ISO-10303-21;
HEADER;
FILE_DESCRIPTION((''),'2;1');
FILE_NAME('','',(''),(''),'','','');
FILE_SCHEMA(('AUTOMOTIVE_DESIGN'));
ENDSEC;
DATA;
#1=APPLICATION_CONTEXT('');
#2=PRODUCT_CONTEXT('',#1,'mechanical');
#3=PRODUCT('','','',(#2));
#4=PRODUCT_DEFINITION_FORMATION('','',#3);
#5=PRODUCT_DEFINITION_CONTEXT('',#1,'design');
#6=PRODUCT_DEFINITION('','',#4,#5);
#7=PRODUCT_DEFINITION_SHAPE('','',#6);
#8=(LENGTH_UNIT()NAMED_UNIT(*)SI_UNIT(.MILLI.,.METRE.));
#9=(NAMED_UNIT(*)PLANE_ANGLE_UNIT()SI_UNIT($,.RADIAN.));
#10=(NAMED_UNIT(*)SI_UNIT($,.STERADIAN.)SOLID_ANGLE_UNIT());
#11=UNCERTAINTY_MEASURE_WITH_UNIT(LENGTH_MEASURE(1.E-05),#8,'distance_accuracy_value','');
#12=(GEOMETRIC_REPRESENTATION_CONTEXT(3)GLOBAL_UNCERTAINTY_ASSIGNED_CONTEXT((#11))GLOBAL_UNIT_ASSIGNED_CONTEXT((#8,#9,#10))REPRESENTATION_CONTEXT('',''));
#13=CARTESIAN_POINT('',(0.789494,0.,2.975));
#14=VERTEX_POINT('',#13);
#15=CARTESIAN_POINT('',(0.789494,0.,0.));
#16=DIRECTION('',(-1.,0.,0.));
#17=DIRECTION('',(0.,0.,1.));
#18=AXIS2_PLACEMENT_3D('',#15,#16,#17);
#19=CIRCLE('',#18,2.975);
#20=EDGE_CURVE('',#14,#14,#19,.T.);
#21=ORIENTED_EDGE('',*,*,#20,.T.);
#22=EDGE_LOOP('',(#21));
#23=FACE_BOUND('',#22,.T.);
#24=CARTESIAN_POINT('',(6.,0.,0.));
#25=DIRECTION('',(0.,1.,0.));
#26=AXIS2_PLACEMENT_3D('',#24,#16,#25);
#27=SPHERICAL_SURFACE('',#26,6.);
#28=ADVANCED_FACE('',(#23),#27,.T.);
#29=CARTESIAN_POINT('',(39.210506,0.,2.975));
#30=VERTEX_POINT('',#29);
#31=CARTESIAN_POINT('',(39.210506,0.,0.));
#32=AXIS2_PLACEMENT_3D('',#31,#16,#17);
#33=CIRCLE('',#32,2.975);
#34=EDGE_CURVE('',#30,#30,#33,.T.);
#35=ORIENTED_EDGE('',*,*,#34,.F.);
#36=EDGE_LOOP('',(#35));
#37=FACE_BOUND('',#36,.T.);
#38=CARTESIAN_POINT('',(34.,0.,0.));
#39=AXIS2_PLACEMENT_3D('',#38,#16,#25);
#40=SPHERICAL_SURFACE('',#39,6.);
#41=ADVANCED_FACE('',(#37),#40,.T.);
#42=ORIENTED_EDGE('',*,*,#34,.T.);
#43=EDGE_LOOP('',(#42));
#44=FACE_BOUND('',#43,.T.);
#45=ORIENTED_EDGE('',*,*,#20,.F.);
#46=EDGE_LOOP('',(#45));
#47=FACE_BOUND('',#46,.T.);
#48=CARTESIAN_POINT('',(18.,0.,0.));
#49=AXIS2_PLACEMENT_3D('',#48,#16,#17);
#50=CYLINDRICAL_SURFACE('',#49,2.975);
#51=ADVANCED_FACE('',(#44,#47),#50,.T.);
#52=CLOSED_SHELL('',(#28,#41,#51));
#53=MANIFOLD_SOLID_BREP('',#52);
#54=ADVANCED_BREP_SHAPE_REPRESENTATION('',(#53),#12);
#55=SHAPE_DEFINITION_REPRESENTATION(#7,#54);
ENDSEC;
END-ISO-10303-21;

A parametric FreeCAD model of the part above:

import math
import FreeCAD as App
import Part
import Sketcher
from FreeCAD import Vector

doc = App.newDocument("Part")
body = doc.addObject("PartDesign::Body", "Body")

# Sketch on XY plane
sketch1 = body.newObject("Sketcher::SketchObject", "Sketch")
sketch1.AttachmentSupport = (doc.getObject("XY_Plane"), [""])
sketch1.MapMode = "FlatFace"
sketch1.addGeometry([
    Part.LineSegment(Vector(0, 0, 0), Vector(40, 0, 0)),
    Part.ArcOfCircle(Part.Circle(Vector(34, 0, 0), Vector(0, 0, 1), 6), math.radians(0), math.radians(29.724716)),
    Part.LineSegment(Vector(39.210506, 2.975, 0), Vector(0.789494, 2.975, 0)),
    Part.ArcOfCircle(Part.Circle(Vector(6, 0, 0), Vector(0, 0, 1), 6), math.radians(150.275284), math.radians(180)),
], False)
sketch1.addConstraint([
    Sketcher.Constraint("Coincident", 0, 2, 1, 1),
    Sketcher.Constraint("Coincident", 1, 2, 2, 1),
    Sketcher.Constraint("Coincident", 2, 2, 3, 1),
    Sketcher.Constraint("Coincident", 3, 2, 0, 1),
    Sketcher.Constraint("Horizontal", 0),
    Sketcher.Constraint("Horizontal", 2),
    Sketcher.Constraint("Coincident", 3, 2, -1, 1),
    Sketcher.Constraint("Equal", 1, 3),
    Sketcher.Constraint("PointOnObject", 1, 3, -1),
    Sketcher.Constraint("PointOnObject", 3, 3, -1),
    Sketcher.Constraint("Radius", 1, 6.0),
    Sketcher.Constraint("DistanceX", 0, 1, 0, 2, 40.0),
    Sketcher.Constraint("DistanceY", -1, 1, 1, 2, 2.975),
])
revolution = body.newObject("PartDesign::Revolution", "Revolution")
revolution.Profile = sketch1
revolution.ReferenceAxis = (sketch1, ["H_Axis"])
revolution.Angle = 360

doc.recompute()
